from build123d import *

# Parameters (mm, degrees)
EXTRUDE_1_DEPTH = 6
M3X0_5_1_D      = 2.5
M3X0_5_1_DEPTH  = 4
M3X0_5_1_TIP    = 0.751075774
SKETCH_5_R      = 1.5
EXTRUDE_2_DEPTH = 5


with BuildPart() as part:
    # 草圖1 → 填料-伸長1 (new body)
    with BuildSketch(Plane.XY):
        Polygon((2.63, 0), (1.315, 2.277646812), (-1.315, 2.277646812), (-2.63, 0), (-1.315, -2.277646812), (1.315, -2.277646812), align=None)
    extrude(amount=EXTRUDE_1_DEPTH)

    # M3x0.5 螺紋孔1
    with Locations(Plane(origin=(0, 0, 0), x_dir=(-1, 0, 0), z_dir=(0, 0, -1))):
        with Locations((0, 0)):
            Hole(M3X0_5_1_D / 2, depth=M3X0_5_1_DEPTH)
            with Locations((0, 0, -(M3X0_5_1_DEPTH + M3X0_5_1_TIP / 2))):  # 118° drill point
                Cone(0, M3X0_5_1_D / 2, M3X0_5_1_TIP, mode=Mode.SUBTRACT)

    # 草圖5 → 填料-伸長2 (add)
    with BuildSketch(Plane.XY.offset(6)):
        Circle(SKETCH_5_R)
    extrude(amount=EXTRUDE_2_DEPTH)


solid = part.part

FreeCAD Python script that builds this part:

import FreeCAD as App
import Part
import Sketcher

V = App.Vector
Q = App.Units.Quantity


def add_polygon(sketch, points):
    """Adds a closed chain of lines whose ends are joined by coincident constraints."""
    first, n = sketch.GeometryCount, len(points)
    for a, b in zip(points, points[1:] + points[:1]):
        sketch.addGeometry(Part.LineSegment(App.Vector(*a, 0), App.Vector(*b, 0)), False)
    for i in range(n):
        sketch.addConstraint(Sketcher.Constraint("Coincident", first + i, 2, first + (i + 1) % n, 1))

doc = App.newDocument("Part")
body = doc.addObject("PartDesign::Body", "Body")

sketch1 = body.newObject("Sketcher::SketchObject", "Sketch")
sketch1.AttachmentSupport = (doc.getObject("XY_Plane"), [""])
sketch1.MapMode = "FlatFace"
add_polygon(sketch1, [(2.6, 0), (1.3, 2.3), (-1.3, 2.3), (-2.6, 0), (-1.3, -2.3), (1.3, -2.3)])
sketch1.addConstraint([
    Sketcher.Constraint("Horizontal", 1),
    Sketcher.Constraint("Horizontal", 4),
    Sketcher.Constraint("Symmetric", 0, 2, 3, 2, -1, 1),
    Sketcher.Constraint("Symmetric", 2, 2, 5, 2, -1, 1),
    Sketcher.Constraint("PointOnObject", 2, 2, -1),
    Sketcher.Constraint("Parallel", 2, 5),
    Sketcher.Constraint("Vertical", 1, 2, 3, 2),
    Sketcher.Constraint("Angle", 0, Q("120 deg")),
    Sketcher.Constraint("DistanceX", 1, 2, 1, 1, 2.63),
    Sketcher.Constraint("Distance", 0, 2.63),
])
pad1 = body.newObject("PartDesign::Pad", "Pad")
pad1.Profile = sketch1
pad1.Length = 6

sketch2 = body.newObject("Sketcher::SketchObject", "Sketch001")
sketch2.AttachmentSupport = (doc.getObject("XY_Plane"), [""])
sketch2.MapMode = "FlatFace"
sketch2.addGeometry(Part.Circle(V(0, 0, 0), V(0, 0, 1), 1.2), False)
sketch2.addConstraint([
    Sketcher.Constraint("Coincident", 0, 3, -1, 1),
    Sketcher.Constraint("Diameter", 0, 2.5),
])
doc.recompute()
hole = body.newObject("PartDesign::Hole", "Hole")
hole.Profile = sketch2
hole.ThreadType = "None"
hole.Diameter = 2.5
hole.DepthType = "Dimension"
hole.Depth = 4
hole.DrillPoint = "Angled"
hole.DrillPointAngle = 118
hole.Reversed = True

sketch3 = body.newObject("Sketcher::SketchObject", "Sketch002")
sketch3.AttachmentSupport = (doc.getObject("XY_Plane"), [""])
sketch3.MapMode = "FlatFace"
sketch3.AttachmentOffset = App.Placement(V(0, 0, 6), App.Rotation())
sketch3.addGeometry(Part.Circle(V(0, 0, 0), V(0, 0, 1), 1.5), False)
sketch3.addConstraint([
    Sketcher.Constraint("Coincident", 0, 3, -1, 1),
    Sketcher.Constraint("Diameter", 0, 3.0),
])
pad2 = body.newObject("PartDesign::Pad", "Pad001")
pad2.Profile = sketch3
pad2.Length = 5

doc.recompute()
